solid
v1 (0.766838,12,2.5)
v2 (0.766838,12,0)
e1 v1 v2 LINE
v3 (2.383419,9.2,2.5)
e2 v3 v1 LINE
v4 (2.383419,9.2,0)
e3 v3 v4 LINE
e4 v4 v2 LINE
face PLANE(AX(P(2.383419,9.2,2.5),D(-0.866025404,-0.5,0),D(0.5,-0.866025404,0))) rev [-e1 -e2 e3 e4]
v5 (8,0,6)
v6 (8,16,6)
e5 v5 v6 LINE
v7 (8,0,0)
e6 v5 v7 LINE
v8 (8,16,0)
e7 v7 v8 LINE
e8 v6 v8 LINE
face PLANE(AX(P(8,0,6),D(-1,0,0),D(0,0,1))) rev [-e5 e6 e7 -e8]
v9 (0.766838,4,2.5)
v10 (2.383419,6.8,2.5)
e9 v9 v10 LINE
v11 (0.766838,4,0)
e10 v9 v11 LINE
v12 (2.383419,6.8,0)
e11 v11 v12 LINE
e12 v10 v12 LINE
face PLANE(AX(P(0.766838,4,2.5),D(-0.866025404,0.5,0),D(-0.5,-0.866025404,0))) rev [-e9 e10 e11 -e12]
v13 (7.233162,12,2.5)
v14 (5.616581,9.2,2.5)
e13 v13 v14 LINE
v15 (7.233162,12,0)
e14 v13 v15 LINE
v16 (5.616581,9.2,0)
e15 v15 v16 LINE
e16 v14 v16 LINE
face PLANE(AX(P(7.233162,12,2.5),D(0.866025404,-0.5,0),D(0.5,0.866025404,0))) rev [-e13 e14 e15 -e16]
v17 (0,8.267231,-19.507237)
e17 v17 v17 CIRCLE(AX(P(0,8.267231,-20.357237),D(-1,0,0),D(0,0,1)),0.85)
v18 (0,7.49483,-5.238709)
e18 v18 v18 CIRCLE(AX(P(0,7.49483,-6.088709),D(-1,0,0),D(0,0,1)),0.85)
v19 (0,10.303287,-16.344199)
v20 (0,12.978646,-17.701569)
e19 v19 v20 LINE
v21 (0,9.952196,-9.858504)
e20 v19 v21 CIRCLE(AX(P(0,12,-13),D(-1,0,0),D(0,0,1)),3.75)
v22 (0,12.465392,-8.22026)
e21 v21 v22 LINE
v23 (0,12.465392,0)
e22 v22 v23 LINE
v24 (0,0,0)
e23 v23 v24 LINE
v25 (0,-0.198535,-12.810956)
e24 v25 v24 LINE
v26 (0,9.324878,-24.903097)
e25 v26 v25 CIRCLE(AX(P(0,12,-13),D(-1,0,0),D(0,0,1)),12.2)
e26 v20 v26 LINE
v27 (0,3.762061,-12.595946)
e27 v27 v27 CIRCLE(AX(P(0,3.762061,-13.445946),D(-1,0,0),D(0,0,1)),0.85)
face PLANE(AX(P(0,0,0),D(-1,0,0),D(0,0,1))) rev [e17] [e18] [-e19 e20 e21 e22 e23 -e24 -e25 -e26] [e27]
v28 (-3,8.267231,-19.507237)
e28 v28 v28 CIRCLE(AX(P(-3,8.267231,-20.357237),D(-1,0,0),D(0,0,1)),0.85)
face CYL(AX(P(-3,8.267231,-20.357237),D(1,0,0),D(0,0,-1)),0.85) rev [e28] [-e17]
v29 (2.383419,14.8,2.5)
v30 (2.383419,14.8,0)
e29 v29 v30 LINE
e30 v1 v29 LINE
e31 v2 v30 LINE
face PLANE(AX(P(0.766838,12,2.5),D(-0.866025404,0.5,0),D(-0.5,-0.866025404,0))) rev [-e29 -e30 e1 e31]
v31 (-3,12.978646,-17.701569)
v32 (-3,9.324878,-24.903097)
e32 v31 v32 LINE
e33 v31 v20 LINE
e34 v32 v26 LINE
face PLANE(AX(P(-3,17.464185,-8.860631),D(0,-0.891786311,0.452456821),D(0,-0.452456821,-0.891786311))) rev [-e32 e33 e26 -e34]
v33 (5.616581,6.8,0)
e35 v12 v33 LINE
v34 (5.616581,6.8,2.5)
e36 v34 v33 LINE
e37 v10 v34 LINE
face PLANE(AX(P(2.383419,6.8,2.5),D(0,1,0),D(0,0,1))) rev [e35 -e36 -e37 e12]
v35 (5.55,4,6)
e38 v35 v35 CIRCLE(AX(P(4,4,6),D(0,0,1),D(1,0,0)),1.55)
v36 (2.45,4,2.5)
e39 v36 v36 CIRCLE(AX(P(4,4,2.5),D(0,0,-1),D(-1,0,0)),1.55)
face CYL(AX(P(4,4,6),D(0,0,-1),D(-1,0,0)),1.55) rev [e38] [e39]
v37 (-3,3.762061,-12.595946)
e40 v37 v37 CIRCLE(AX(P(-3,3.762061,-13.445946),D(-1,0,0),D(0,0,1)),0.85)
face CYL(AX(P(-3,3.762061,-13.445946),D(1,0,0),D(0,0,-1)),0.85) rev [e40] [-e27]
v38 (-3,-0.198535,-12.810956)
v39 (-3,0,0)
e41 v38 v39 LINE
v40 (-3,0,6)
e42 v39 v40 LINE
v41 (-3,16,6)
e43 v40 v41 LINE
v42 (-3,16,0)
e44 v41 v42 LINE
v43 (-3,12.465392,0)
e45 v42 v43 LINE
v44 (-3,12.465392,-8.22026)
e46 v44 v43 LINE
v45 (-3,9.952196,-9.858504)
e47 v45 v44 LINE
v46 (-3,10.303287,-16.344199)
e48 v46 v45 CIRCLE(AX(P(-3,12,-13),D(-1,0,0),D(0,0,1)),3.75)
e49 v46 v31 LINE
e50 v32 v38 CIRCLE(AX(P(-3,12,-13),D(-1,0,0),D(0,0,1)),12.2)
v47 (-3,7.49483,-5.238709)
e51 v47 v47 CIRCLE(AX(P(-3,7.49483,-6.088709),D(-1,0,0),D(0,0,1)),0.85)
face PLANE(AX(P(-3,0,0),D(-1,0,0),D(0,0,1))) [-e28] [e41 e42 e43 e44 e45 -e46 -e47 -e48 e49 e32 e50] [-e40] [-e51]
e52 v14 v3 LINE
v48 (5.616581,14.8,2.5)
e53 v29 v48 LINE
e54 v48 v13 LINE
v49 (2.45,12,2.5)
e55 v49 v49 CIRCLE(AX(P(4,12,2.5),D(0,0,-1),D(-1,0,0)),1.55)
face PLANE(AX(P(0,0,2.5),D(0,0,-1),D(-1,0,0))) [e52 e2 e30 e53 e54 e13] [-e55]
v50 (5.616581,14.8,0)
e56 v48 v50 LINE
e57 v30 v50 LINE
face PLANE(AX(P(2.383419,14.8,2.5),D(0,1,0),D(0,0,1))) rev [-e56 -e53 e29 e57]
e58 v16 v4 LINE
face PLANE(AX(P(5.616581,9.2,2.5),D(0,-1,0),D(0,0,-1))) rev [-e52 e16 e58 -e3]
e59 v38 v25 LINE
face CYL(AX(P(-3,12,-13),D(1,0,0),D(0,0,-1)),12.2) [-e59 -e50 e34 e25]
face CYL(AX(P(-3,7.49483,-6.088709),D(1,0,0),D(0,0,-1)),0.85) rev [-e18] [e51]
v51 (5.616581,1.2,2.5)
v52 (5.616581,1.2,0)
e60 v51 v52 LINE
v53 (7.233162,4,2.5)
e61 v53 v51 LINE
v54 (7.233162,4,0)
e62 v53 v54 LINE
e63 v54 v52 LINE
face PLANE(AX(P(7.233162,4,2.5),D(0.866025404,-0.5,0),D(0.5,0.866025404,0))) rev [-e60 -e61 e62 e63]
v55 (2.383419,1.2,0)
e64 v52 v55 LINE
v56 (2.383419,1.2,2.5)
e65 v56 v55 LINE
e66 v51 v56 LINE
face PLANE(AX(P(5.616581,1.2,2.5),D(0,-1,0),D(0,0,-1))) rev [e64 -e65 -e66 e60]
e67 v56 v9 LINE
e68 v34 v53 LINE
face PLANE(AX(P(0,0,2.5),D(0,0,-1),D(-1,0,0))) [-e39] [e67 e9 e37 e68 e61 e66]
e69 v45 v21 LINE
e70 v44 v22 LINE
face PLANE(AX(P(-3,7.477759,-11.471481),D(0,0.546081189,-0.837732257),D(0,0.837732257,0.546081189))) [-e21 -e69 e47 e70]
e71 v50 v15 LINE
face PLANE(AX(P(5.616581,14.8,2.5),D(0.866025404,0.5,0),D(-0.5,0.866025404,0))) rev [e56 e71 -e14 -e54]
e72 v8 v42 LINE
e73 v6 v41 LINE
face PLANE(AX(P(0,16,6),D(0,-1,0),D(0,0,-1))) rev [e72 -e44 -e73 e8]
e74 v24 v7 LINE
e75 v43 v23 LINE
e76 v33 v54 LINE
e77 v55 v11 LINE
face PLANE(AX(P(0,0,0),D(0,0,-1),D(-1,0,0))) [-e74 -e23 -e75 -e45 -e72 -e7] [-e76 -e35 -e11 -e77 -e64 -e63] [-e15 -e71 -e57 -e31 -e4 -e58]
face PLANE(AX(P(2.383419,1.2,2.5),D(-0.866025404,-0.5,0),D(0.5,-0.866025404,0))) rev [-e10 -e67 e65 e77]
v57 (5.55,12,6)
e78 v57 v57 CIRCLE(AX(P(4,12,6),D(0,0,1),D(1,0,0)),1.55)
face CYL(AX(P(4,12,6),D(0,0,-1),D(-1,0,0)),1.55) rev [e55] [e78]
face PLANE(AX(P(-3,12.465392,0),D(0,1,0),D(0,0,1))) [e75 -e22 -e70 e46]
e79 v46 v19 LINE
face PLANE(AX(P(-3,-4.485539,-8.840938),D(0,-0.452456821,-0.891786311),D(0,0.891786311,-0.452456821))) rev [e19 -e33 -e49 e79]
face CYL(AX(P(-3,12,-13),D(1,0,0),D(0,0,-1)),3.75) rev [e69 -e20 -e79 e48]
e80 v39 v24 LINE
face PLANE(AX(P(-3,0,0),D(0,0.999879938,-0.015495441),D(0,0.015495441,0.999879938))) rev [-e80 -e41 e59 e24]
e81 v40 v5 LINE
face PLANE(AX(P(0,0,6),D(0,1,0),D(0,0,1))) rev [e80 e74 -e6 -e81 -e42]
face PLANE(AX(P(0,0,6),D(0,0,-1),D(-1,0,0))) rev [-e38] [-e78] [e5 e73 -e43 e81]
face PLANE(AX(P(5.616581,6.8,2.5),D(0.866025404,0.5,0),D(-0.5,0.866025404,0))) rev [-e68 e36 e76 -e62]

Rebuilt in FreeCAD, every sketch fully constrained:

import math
import FreeCAD as App
import Part
import Sketcher
from FreeCAD import Vector
Q = App.Units.Quantity


def add_polygon(sketch, points):
    """Adds a closed chain of lines whose ends are joined by coincident constraints."""
    first, n = sketch.GeometryCount, len(points)
    for a, b in zip(points, points[1:] + points[:1]):
        sketch.addGeometry(Part.LineSegment(App.Vector(*a, 0), App.Vector(*b, 0)), False)
    for i in range(n):
        sketch.addConstraint(Sketcher.Constraint("Coincident", first + i, 2, first + (i + 1) % n, 1))

doc = App.newDocument("Part")
body = doc.addObject("PartDesign::Body", "Body")

sketch1 = body.newObject("Sketcher::SketchObject", "Sketch")
sketch1.AttachmentSupport = (doc.getObject("XY_Plane"), [""])
sketch1.MapMode = "FlatFace"
add_polygon(sketch1, [(0, 16), (0, 0), (8, 0), (8, 16)])
sketch1.addGeometry(Part.Circle(Vector(4, 4, 0), Vector(0, 0, 1), 1.6), False)
sketch1.addGeometry(Part.Circle(Vector(4, 12, 0), Vector(0, 0, 1), 1.6), False)
sketch1.addConstraint([
    Sketcher.Constraint("Vertical", 0),
    Sketcher.Constraint("Horizontal", 1),
    Sketcher.Constraint("Vertical", 2),
    Sketcher.Constraint("Horizontal", 3),
    Sketcher.Constraint("Coincident", 0, 2, -1, 1),
    Sketcher.Constraint("Equal", 4, 5),
    Sketcher.Constraint("Vertical", 4, 3, 5, 3),
    Sketcher.Constraint("Diameter", 4, 3.1),
    Sketcher.Constraint("DistanceX", 1, 1, 1, 2, 8.0),
    Sketcher.Constraint("DistanceY", 0, 2, 0, 1, 16.0),
    Sketcher.Constraint("DistanceX", -1, 1, 4, 3, 4.0),
    Sketcher.Constraint("DistanceY", -1, 1, 4, 3, 4.0),
    Sketcher.Constraint("DistanceY", -1, 1, 5, 3, 12.0),
])
pad1 = body.newObject("PartDesign::Pad", "Pad")
pad1.Profile = sketch1
pad1.Length = 6

sketch2 = body.newObject("Sketcher::SketchObject", "Sketch001")
sketch2.AttachmentSupport = (doc.getObject("XY_Plane"), [""])
sketch2.MapMode = "FlatFace"
add_polygon(sketch2, [(0.8, 12), (2.4, 14.8), (5.6, 14.8), (7.2, 12), (5.6, 9.2), (2.4, 9.2)])
add_polygon(sketch2, [(0.8, 4), (2.4, 6.8), (5.6, 6.8), (7.2, 4), (5.6, 1.2), (2.4, 1.2)])
sketch2.addConstraint([
    Sketcher.Constraint("Horizontal", 1),
    Sketcher.Constraint("Horizontal", 4),
    Sketcher.Constraint("Horizontal", 7),
    Sketcher.Constraint("Horizontal", 10),
    Sketcher.Constraint("Parallel", 0, 3),
    Sketcher.Constraint("Parallel", 2, 5),
    Sketcher.Constraint("Parallel", 3, 6),
    Sketcher.Constraint("Parallel", 5, 8),
    Sketcher.Constraint("Parallel", 6, 9),
    Sketcher.Constraint("Parallel", 8, 11),
    Sketcher.Constraint("Horizontal", 2, 2, 5, 2),
    Sketcher.Constraint("Horizontal", 8, 2, 11, 2),
    Sketcher.Constraint("Vertical", 1, 2, 3, 2),
    Sketcher.Constraint("Vertical", 0, 2, 4, 2),
    Sketcher.Constraint("Vertical", 4, 2, 6, 2),
    Sketcher.Constraint("Vertical", 3, 2, 7, 2),
    Sketcher.Constraint("Vertical", 2, 2, 8, 2),
    Sketcher.Constraint("Vertical", 7, 2, 9, 2),
    Sketcher.Constraint("Angle", 0, Q("60 deg")),
    Sketcher.Constraint("DistanceY", -1, 1, 2, 2, 12.0),
    Sketcher.Constraint("DistanceY", -1, 1, 8, 2, 4.0),
    Sketcher.Constraint("DistanceY", -1, 1, 0, 2, 14.8),
    Sketcher.Constraint("DistanceX", 1, 1, 1, 2, 3.233162),
    Sketcher.Constraint("DistanceX", -1, 1, 0, 2, 2.383419),
])
pocket1 = body.newObject("PartDesign::Pocket", "Pocket")
pocket1.Profile = sketch2
pocket1.Length = 2.5
pocket1.Reversed = True

sketch3 = body.newObject("Sketcher::SketchObject", "Sketch002")
sketch3.AttachmentSupport = (doc.getObject("YZ_Plane"), [""])
sketch3.MapMode = "FlatFace"
sketch3.addGeometry([
    Part.LineSegment(Vector(16, 0, 0), Vector(12.5, 0, 0)),
    Part.LineSegment(Vector(12.5, 0, 0), Vector(12.5, -8.2, 0)),
    Part.LineSegment(Vector(12.5, -8.2, 0), Vector(10, -9.9, 0)),
    Part.ArcOfCircle(Part.Circle(Vector(12, -13, 0), Vector(0, 0, 1), 3.8), math.radians(123), math.radians(243)),
    Part.LineSegment(Vector(10.3, -16.3, 0), Vector(13, -17.7, 0)),
    Part.LineSegment(Vector(13, -17.7, 0), Vector(9.3, -24.9, 0)),
    Part.ArcOfCircle(Part.Circle(Vector(12, -13, 0), Vector(0, 0, 1), 12.2), math.radians(179), math.radians(257)),
    Part.LineSegment(Vector(-0.2, -12.8, 0), Vector(0, 0, 0)),
    Part.LineSegment(Vector(0, 0, 0), Vector(0, 6, 0)),
    Part.LineSegment(Vector(0, 6, 0), Vector(16, 6, 0)),
    Part.LineSegment(Vector(16, 6, 0), Vector(16, 0, 0)),
    Part.Circle(Vector(7.5, -6.1, 0), Vector(0, 0, 1), 0.8),
    Part.Circle(Vector(3.8, -13.4, 0), Vector(0, 0, 1), 0.8),
    Part.Circle(Vector(8.3, -20.4, 0), Vector(0, 0, 1), 0.8),
], False)
sketch3.addConstraint([
    Sketcher.Constraint("Coincident", 0, 2, 1, 1),
    Sketcher.Constraint("Coincident", 1, 2, 2, 1),
    Sketcher.Constraint("Tangent", 2, 2, 3, 1),
    Sketcher.Constraint("Tangent", 3, 2, 4, 1),
    Sketcher.Constraint("Coincident", 4, 2, 5, 1),
    Sketcher.Constraint("Coincident", 5, 2, 6, 2),
    Sketcher.Constraint("Tangent", 6, 1, 7, 1),
    Sketcher.Constraint("Coincident", 7, 2, 8, 1),
    Sketcher.Constraint("Coincident", 8, 2, 9, 1),
    Sketcher.Constraint("Coincident", 9, 2, 10, 1),
    Sketcher.Constraint("Coincident", 10, 2, 0, 1),
    Sketcher.Constraint("Horizontal", 0),
    Sketcher.Constraint("Vertical", 1),
    Sketcher.Constraint("Vertical", 8),
    Sketcher.Constraint("Horizontal", 9),
    Sketcher.Constraint("Vertical", 10),
    Sketcher.Constraint("Coincident", 7, 2, -1, 1),
    Sketcher.Constraint("Coincident", 6, 3, 3, 3),
    Sketcher.Constraint("Equal", 11, 12),
    Sketcher.Constraint("Equal", 12, 13),
    Sketcher.Constraint("PointOnObject", 0, 2, -1),
    Sketcher.Constraint("Perpendicular", 4, 5),
    Sketcher.Constraint("Equal", 2, 4),
    Sketcher.Constraint("Diameter", 11, 1.7),
    Sketcher.Constraint("Radius", 6, 12.2),
    Sketcher.Constraint("DistanceX", 9, 1, 9, 2, 16.0),
    Sketcher.Constraint("DistanceY", 8, 1, 8, 2, 6.0),
    Sketcher.Constraint("Radius", 3, 3.75),
    Sketcher.Constraint("Distance", 2, 3.0),
    Sketcher.Constraint("DistanceX", -1, 1, 3, 3, 12.0),
    Sketcher.Constraint("DistanceY", 3, 3, -1, 1, 13.0),
    Sketcher.Constraint("DistanceY", 1, 2, 1, 1, 8.22026),
    Sketcher.Constraint("DistanceY", 3, 2, -1, 1, 16.344199),
    Sketcher.Constraint("DistanceX", 11, 3, 13, 3, 0.772401),
    Sketcher.Constraint("DistanceX", -1, 1, 11, 3, 7.49483),
    Sketcher.Constraint("DistanceY", 11, 3, -1, 1, 6.088709),
    Sketcher.Constraint("DistanceX", -1, 1, 12, 3, 3.762061),
    Sketcher.Constraint("DistanceY", 13, 3, 12, 3, 6.911291),
    Sketcher.Constraint("DistanceY", 13, 3, 11, 3, 14.268528),
])
pad2 = body.newObject("PartDesign::Pad", "Pad001")
pad2.Profile = sketch3
pad2.Length = 3
pad2.Reversed = True

doc.recompute()
